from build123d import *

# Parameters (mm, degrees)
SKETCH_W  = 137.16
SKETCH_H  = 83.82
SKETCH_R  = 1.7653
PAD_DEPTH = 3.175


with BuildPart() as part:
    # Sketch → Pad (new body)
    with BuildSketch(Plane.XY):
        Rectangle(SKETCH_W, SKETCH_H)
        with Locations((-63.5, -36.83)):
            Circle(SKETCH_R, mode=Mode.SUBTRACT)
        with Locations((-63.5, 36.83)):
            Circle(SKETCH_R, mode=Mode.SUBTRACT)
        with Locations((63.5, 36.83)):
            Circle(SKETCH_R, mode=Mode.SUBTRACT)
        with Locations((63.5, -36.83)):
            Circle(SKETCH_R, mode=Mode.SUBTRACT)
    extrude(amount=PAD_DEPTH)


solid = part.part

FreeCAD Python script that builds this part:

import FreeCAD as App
import Part
import Sketcher
from FreeCAD import Vector
Q = App.Units.Quantity


def add_polygon(sketch, points):
    """Adds a closed chain of lines whose ends are joined by coincident constraints."""
    first, n = sketch.GeometryCount, len(points)
    for a, b in zip(points, points[1:] + points[:1]):
        sketch.addGeometry(Part.LineSegment(App.Vector(*a, 0), App.Vector(*b, 0)), False)
    for i in range(n):
        sketch.addConstraint(Sketcher.Constraint("Coincident", first + i, 2, first + (i + 1) % n, 1))

doc = App.newDocument("Part")
body = doc.addObject("PartDesign::Body", "Body")

# Sketch on XY plane
sketch1 = doc.addObject("Sketcher::SketchObject", "Sketch")
body.addObject(sketch1)
sketch1.AttachmentSupport = (doc.XY_Plane, [""])
sketch1.MapMode = "FlatFace"
add_polygon(sketch1, [(-68.6, 41.9), (-68.6, -41.9), (68.6, -41.9), (68.6, 41.9)])  # lines 0-3
sketch1.addGeometry(Part.Circle(Vector(-63.5, -36.8, 0), Vector(0, 0, 1), 1.8), False)  # 4
sketch1.addGeometry(Part.Circle(Vector(63.5, -36.8, 0), Vector(0, 0, 1), 1.8), False)  # 5
sketch1.addGeometry(Part.Circle(Vector(-63.5, 36.8, 0), Vector(0, 0, 1), 1.8), False)  # 6
sketch1.addGeometry(Part.Circle(Vector(63.5, 36.8, 0), Vector(0, 0, 1), 1.8), False)  # 7
sketch1.addConstraint([
    Sketcher.Constraint("Vertical", 0),
    Sketcher.Constraint("Horizontal", 1),
    Sketcher.Constraint("Vertical", 2),
    Sketcher.Constraint("Horizontal", 3),
    Sketcher.Constraint("Equal", 4, 5),
    Sketcher.Constraint("Equal", 5, 6),
    Sketcher.Constraint("Equal", 6, 7),
    Sketcher.Constraint("Symmetric", 5, 3, 6, 3, -1, 1),
    Sketcher.Constraint("Symmetric", 4, 3, 7, 3, -1, 1),
    Sketcher.Constraint("Symmetric", 0, 2, 2, 2, -1, 1),
    Sketcher.Constraint("Symmetric", 4, 3, 5, 3, -2),
    Sketcher.Constraint("Diameter", 4, Q("0.139 in")),
    Sketcher.Constraint("DistanceX", 1, 1, 1, 2, Q("5.4 in")),
    Sketcher.Constraint("DistanceY", 0, 2, 0, 1, Q("3.3 in")),
    Sketcher.Constraint("DistanceX", 4, 3, 5, 3, Q("5 in")),
    Sketcher.Constraint("DistanceY", 4, 3, 6, 3, Q("2.9 in")),
])
pad1 = doc.addObject("PartDesign::Pad", "Pad")
body.addObject(pad1)
pad1.Profile = sketch1
pad1.Length = Q("0.125 in")

doc.recompute()
